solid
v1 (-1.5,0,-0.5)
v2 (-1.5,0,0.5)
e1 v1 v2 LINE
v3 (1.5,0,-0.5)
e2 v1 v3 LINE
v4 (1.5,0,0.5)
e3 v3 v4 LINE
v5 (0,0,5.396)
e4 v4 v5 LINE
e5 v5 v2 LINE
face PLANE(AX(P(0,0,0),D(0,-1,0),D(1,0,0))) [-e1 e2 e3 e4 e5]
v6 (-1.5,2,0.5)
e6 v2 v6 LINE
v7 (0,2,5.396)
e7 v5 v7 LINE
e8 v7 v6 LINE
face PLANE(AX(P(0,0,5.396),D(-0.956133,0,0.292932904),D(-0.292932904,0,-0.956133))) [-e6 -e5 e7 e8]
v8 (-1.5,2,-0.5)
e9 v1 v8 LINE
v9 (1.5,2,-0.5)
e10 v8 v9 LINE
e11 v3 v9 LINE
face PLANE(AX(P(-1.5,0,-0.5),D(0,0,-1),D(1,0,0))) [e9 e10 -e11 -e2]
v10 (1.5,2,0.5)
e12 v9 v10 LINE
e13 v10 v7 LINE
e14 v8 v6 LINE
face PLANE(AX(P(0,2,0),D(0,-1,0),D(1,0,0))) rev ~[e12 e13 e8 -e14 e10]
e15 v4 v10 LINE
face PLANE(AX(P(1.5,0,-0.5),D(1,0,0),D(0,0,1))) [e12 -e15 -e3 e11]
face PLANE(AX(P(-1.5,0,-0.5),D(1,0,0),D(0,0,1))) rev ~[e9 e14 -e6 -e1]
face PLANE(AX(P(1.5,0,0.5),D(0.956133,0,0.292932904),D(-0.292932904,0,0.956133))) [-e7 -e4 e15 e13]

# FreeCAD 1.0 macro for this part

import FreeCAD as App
import Part
import Sketcher

V = App.Vector


def add_polygon(sketch, points):
    """Adds a closed chain of lines whose ends are joined by coincident constraints."""
    first, n = sketch.GeometryCount, len(points)
    for a, b in zip(points, points[1:] + points[:1]):
        sketch.addGeometry(Part.LineSegment(App.Vector(*a, 0), App.Vector(*b, 0)), False)
    for i in range(n):
        sketch.addConstraint(Sketcher.Constraint("Coincident", first + i, 2, first + (i + 1) % n, 1))

doc = App.newDocument("Part")
body = doc.addObject("PartDesign::Body", "Body")

sketch1 = body.newObject("Sketcher::SketchObject", "Sketch")
sketch1.AttachmentSupport = (doc.getObject("XZ_Plane"), [""])
sketch1.MapMode = "FlatFace"
add_polygon(sketch1, [(-1.5, 0.5), (-1.5, -0.5), (1.5, -0.5), (1.5, 0.5), (0, 5.396)])
sketch1.addConstraint([
    Sketcher.Constraint("Vertical", 0),
    Sketcher.Constraint("Horizontal", 1),
    Sketcher.Constraint("Vertical", 2),
    Sketcher.Constraint("Symmetric", 0, 2, 2, 2, -1, 1),
    Sketcher.Constraint("PointOnObject", 3, 2, -2),
    Sketcher.Constraint("Horizontal", 2, 2, 4, 2),
    Sketcher.Constraint("DistanceX", 1, 1, 1, 2, 3.0),
    Sketcher.Constraint("DistanceY", 0, 2, 0, 1, 1.0),
    Sketcher.Constraint("DistanceY", -1, 1, 3, 2, 5.396),
])
pad1 = body.newObject("PartDesign::Pad", "Pad")
pad1.Profile = sketch1
pad1.Length = 2
pad1.Reversed = True

doc.recompute()
